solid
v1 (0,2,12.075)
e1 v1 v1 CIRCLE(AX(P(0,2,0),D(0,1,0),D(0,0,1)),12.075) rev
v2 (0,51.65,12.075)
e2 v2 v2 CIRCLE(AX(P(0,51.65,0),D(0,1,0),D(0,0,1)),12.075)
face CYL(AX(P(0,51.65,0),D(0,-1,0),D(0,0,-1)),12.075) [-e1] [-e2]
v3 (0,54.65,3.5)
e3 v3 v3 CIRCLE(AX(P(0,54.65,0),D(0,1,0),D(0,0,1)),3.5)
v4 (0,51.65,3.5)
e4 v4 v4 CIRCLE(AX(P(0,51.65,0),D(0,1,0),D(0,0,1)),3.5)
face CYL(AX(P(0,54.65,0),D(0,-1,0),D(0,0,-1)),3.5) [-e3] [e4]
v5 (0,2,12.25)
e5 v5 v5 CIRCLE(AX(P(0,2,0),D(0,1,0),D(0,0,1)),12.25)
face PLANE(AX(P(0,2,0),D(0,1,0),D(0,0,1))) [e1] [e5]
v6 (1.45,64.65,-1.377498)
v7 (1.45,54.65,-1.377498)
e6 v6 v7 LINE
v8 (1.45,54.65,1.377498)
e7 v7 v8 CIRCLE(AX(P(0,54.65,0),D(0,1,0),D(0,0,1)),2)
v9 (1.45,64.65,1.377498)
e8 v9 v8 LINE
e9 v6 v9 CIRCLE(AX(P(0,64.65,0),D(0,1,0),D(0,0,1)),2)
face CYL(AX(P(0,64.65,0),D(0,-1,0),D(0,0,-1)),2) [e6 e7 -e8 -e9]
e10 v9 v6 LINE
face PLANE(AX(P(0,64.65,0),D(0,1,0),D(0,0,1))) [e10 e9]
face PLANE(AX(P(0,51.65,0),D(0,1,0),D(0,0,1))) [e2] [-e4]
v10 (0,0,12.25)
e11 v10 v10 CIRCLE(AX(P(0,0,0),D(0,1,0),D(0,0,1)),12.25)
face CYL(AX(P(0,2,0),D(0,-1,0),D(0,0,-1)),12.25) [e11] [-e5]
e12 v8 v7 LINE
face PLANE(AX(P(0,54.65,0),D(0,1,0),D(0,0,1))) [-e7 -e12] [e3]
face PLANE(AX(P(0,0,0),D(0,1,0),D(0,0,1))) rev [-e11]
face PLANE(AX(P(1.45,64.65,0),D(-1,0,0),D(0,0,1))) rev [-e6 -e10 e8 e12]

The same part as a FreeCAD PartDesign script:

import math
import FreeCAD as App
import Part
import Sketcher

V = App.Vector

doc = App.newDocument("Part")
body = doc.addObject("PartDesign::Body", "Body")

# Sketch on XZ plane
sketch1 = body.newObject("Sketcher::SketchObject", "Sketch")
sketch1.AttachmentSupport = (doc.getObject("XZ_Plane"), [""])
sketch1.MapMode = "FlatFace"
sketch1.addGeometry(Part.Circle(V(0, 0, 0), V(0, 0, 1), 12), False)
sketch1.addConstraint([
    Sketcher.Constraint("Coincident", 0, 3, -1, 1),
    Sketcher.Constraint("Diameter", 0, 24.5),
])
pad1 = body.newObject("PartDesign::Pad", "Pad")
pad1.Profile = sketch1
pad1.Length = 2
pad1.Reversed = True

# Sketch on XZ plane
sketch2 = body.newObject("Sketcher::SketchObject", "Sketch001")
sketch2.AttachmentSupport = (doc.getObject("XZ_Plane"), [""])
sketch2.MapMode = "FlatFace"
sketch2.addGeometry(Part.Circle(V(0, 0, 0), V(0, 0, 1), 12), False)
sketch2.addConstraint([
    Sketcher.Constraint("Coincident", 0, 3, -1, 1),
    Sketcher.Constraint("Diameter", 0, 24.15),
])
pad2 = body.newObject("PartDesign::Pad", "Pad001")
pad2.Profile = sketch2
pad2.Length = 51.65
pad2.Reversed = True

# Sketch on XZ plane
sketch3 = body.newObject("Sketcher::SketchObject", "Sketch002")
sketch3.AttachmentSupport = (doc.getObject("XZ_Plane"), [""])
sketch3.MapMode = "FlatFace"
sketch3.AttachmentOffset = App.Placement(V(0, 0, -51.65), App.Rotation())
sketch3.addGeometry(Part.Circle(V(0, 0, 0), V(0, 0, 1), 3.5), False)
sketch3.addConstraint([
    Sketcher.Constraint("Coincident", 0, 3, -1, 1),
    Sketcher.Constraint("Diameter", 0, 7.0),
])
pad3 = body.newObject("PartDesign::Pad", "Pad002")
pad3.Profile = sketch3
pad3.Length = 3
pad3.Reversed = True

# Sketch on XZ plane
sketch4 = body.newObject("Sketcher::SketchObject", "Sketch003")
sketch4.AttachmentSupport = (doc.getObject("XZ_Plane"), [""])
sketch4.MapMode = "FlatFace"
sketch4.AttachmentOffset = App.Placement(V(0, 0, -54.65), App.Rotation())
sketch4.addGeometry([
    Part.ArcOfCircle(Part.Circle(V(0, 0, 0), V(0, 0, 1), 2), math.radians(44), math.radians(316)),
    Part.LineSegment(V(1.4, 1.4, 0), V(1.4, -1.4, 0)),
], False)
sketch4.addConstraint([
    Sketcher.Constraint("Coincident", 0, 1, 1, 1),
    Sketcher.Constraint("Coincident", 1, 2, 0, 2),
    Sketcher.Constraint("Vertical", 1),
    Sketcher.Constraint("Coincident", 0, 3, -1, 1),
    Sketcher.Constraint("Radius", 0, 2.0),
    Sketcher.Constraint("DistanceX", -1, 1, 0, 1, 1.45),
])
pad4 = body.newObject("PartDesign::Pad", "Pad003")
pad4.Profile = sketch4
pad4.Length = 10
pad4.Reversed = True

doc.recompute()
